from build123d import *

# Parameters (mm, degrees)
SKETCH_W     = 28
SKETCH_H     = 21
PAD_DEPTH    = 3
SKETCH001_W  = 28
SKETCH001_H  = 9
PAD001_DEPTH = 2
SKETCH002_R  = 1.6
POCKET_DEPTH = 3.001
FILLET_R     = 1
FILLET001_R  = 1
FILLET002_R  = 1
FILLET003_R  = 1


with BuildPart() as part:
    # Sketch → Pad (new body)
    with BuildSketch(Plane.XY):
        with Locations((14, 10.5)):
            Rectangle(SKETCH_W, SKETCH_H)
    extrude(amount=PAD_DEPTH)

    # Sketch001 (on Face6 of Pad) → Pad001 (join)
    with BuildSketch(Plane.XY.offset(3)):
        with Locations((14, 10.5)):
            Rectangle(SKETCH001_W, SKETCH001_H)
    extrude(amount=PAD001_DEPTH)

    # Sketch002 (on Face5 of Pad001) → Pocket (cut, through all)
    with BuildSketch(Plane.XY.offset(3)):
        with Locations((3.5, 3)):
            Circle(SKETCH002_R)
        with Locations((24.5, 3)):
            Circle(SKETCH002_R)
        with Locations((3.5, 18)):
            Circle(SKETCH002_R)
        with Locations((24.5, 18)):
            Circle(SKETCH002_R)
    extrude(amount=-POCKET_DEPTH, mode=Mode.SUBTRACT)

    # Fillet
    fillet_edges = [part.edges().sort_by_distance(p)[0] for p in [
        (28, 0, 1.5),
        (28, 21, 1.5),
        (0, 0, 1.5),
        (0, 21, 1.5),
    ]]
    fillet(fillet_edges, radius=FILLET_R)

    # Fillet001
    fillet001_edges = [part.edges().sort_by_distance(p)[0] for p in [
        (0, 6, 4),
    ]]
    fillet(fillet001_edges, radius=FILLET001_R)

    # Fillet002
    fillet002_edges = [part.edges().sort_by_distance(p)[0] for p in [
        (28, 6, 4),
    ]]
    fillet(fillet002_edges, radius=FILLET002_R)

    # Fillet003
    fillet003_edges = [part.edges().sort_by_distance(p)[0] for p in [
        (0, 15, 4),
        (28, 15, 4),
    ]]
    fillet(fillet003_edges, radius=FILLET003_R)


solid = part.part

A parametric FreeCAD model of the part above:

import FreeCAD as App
import Part
import Sketcher
Q = App.Units.Quantity


def edges_at(feature, points):
    """Names of the edges that pass closest to the given points."""
    edges = feature.Shape.Edges
    near = lambda p: min(range(len(edges)), key=lambda i: edges[i].distToShape(Part.Vertex(*p))[0])
    return sorted({f"Edge{near(p) + 1}" for p in points})


def add_polygon(sketch, points):
    """Adds a closed chain of lines whose ends are joined by coincident constraints."""
    first, n = sketch.GeometryCount, len(points)
    for a, b in zip(points, points[1:] + points[:1]):
        sketch.addGeometry(Part.LineSegment(App.Vector(*a, 0), App.Vector(*b, 0)), False)
    for i in range(n):
        sketch.addConstraint(Sketcher.Constraint("Coincident", first + i, 2, first + (i + 1) % n, 1))

doc = App.newDocument("Part")
body = doc.addObject("PartDesign::Body", "Body")

sketch1 = doc.addObject("Sketcher::SketchObject", "Sketch")
body.addObject(sketch1)
sketch1.AttachmentSupport = (doc.XY_Plane, [""])
sketch1.MapMode = "FlatFace"
add_polygon(sketch1, [(0, 21), (0, 0), (28, 0), (28, 21)])
sketch1.addConstraint(Sketcher.Constraint("Vertical", 0))
sketch1.addConstraint(Sketcher.Constraint("Horizontal", 1))
sketch1.addConstraint(Sketcher.Constraint("Vertical", 2))
sketch1.addConstraint(Sketcher.Constraint("Horizontal", 3))
sketch1.addConstraint(Sketcher.Constraint("Coincident", 0, 2, -1, 1))
sketch1.addConstraint(Sketcher.Constraint("DistanceX", 1, 1, 1, 2, Q("28 mm")))
sketch1.addConstraint(Sketcher.Constraint("DistanceY", 0, 2, 0, 1, Q("21 mm")))
pad1 = doc.addObject("PartDesign::Pad", "Pad")
body.addObject(pad1)
pad1.Profile = sketch1
pad1.Length = 3

sketch2 = doc.addObject("Sketcher::SketchObject", "Sketch001")
body.addObject(sketch2)
sketch2.AttachmentSupport = (doc.XY_Plane, [""])
sketch2.MapMode = "FlatFace"
sketch2.AttachmentOffset = App.Placement(App.Vector(0, 0, 3), App.Rotation())
add_polygon(sketch2, [(0, 15), (0, 6), (28, 6), (28, 15)])
sketch2.addConstraint(Sketcher.Constraint("Vertical", 0))
sketch2.addConstraint(Sketcher.Constraint("Horizontal", 1))
sketch2.addConstraint(Sketcher.Constraint("Vertical", 2))
sketch2.addConstraint(Sketcher.Constraint("Horizontal", 3))
sketch2.addConstraint(Sketcher.Constraint("PointOnObject", 0, 2, -2))
sketch2.addConstraint(Sketcher.Constraint("DistanceX", 1, 1, 1, 2, Q("28 mm")))
sketch2.addConstraint(Sketcher.Constraint("DistanceY", 0, 2, 0, 1, Q("9 mm")))
sketch2.addConstraint(Sketcher.Constraint("DistanceY", -1, 1, 0, 2, Q("6 mm")))
pad2 = doc.addObject("PartDesign::Pad", "Pad001")
body.addObject(pad2)
pad2.Profile = sketch2
pad2.Length = 2

sketch3 = doc.addObject("Sketcher::SketchObject", "Sketch002")
body.addObject(sketch3)
sketch3.AttachmentSupport = (doc.XY_Plane, [""])
sketch3.MapMode = "FlatFace"
sketch3.AttachmentOffset = App.Placement(App.Vector(0, 0, 3), App.Rotation())
sketch3.addGeometry(Part.Circle(App.Vector(3.5, 3, 0), App.Vector(0, 0, 1), 1.6), False)
sketch3.addGeometry(Part.Circle(App.Vector(24.5, 3, 0), App.Vector(0, 0, 1), 1.6), False)
sketch3.addGeometry(Part.Circle(App.Vector(3.5, 18, 0), App.Vector(0, 0, 1), 1.6), False)
sketch3.addGeometry(Part.Circle(App.Vector(24.5, 18, 0), App.Vector(0, 0, 1), 1.6), False)
sketch3.addConstraint(Sketcher.Constraint("Equal", 0, 1))
sketch3.addConstraint(Sketcher.Constraint("Equal", 1, 2))
sketch3.addConstraint(Sketcher.Constraint("Equal", 2, 3))
sketch3.addConstraint(Sketcher.Constraint("Horizontal", 0, 3, 1, 3))
sketch3.addConstraint(Sketcher.Constraint("Horizontal", 2, 3, 3, 3))
sketch3.addConstraint(Sketcher.Constraint("Vertical", 0, 3, 2, 3))
sketch3.addConstraint(Sketcher.Constraint("Vertical", 1, 3, 3, 3))
sketch3.addConstraint(Sketcher.Constraint("Diameter", 0, Q("3.2 mm")))
sketch3.addConstraint(Sketcher.Constraint("DistanceY", -1, 1, 0, 3, Q("3 mm")))
sketch3.addConstraint(Sketcher.Constraint("DistanceY", -1, 1, 2, 3, Q("18 mm")))
sketch3.addConstraint(Sketcher.Constraint("DistanceX", 0, 3, 1, 3, Q("21 mm")))
sketch3.addConstraint(Sketcher.Constraint("DistanceX", -1, 1, 0, 3, Q("3.5 mm")))
pocket1 = doc.addObject("PartDesign::Pocket", "Pocket")
body.addObject(pocket1)
pocket1.Profile = sketch3
pocket1.Type = "ThroughAll"
doc.recompute()

fillet = doc.addObject("PartDesign::Fillet", "Fillet")
body.addObject(fillet)
fillet.Base = (pocket1, edges_at(pocket1, [
    (28, 0, 1.5),
    (28, 21, 1.5),
    (0, 0, 1.5),
    (0, 21, 1.5),
]))
fillet.Radius = 1
doc.recompute()

fillet2 = doc.addObject("PartDesign::Fillet", "Fillet001")
body.addObject(fillet2)
fillet2.Base = (fillet, edges_at(fillet, [(0, 6, 4)]))
fillet2.Radius = 1
doc.recompute()

fillet3 = doc.addObject("PartDesign::Fillet", "Fillet002")
body.addObject(fillet3)
fillet3.Base = (fillet2, edges_at(fillet2, [(28, 6, 4)]))
fillet3.Radius = 1
doc.recompute()

fillet4 = doc.addObject("PartDesign::Fillet", "Fillet003")
body.addObject(fillet4)
fillet4.Base = (fillet3, edges_at(fillet3, [(0, 15, 4), (28, 15, 4)]))
fillet4.Radius = 1

doc.recompute()
